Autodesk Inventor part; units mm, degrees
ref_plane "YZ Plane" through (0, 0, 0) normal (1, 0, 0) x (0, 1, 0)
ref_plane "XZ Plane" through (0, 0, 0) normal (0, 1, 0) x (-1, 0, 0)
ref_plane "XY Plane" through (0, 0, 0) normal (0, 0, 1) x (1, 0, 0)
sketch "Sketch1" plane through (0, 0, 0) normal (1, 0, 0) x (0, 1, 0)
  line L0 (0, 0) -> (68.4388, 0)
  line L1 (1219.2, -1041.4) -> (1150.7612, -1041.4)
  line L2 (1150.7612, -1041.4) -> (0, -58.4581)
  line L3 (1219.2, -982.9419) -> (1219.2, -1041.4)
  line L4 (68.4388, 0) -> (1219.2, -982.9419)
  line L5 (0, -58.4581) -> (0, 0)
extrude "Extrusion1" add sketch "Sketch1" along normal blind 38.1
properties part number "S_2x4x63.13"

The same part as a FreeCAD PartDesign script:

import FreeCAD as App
import Part
import Sketcher
from FreeCAD import Vector
Q = App.Units.Quantity

doc = App.newDocument("Part")
body = doc.addObject("PartDesign::Body", "Body")

# Sketch on YZ plane
sketch1 = doc.addObject("Sketcher::SketchObject", "Sketch")
body.addObject(sketch1)
sketch1.AttachmentSupport = (doc.YZ_Plane, [""])
sketch1.MapMode = "FlatFace"
sketch1.addGeometry(Part.LineSegment(Vector(68, 0, 0), Vector(0, 0, 0)), False)
sketch1.addGeometry(Part.LineSegment(Vector(0, 0, 0), Vector(0, -58, 0)), False)
sketch1.addGeometry(Part.LineSegment(Vector(0, -58, 0), Vector(1151, -1041, 0)), False)
sketch1.addGeometry(Part.LineSegment(Vector(1151, -1041, 0), Vector(1219, -1041, 0)), False)
sketch1.addGeometry(Part.LineSegment(Vector(1219, -1041, 0), Vector(1219, -983, 0)), False)
sketch1.addGeometry(Part.LineSegment(Vector(1219, -983, 0), Vector(68, 0, 0)), False)
sketch1.addConstraint(Sketcher.Constraint("Coincident", 0, 2, 1, 1))
sketch1.addConstraint(Sketcher.Constraint("Coincident", 1, 2, 2, 1))
sketch1.addConstraint(Sketcher.Constraint("Coincident", 2, 2, 3, 1))
sketch1.addConstraint(Sketcher.Constraint("Coincident", 3, 2, 4, 1))
sketch1.addConstraint(Sketcher.Constraint("Coincident", 4, 2, 5, 1))
sketch1.addConstraint(Sketcher.Constraint("Coincident", 5, 2, 0, 1))
sketch1.addConstraint(Sketcher.Constraint("Horizontal", 0))
sketch1.addConstraint(Sketcher.Constraint("Vertical", 1))
sketch1.addConstraint(Sketcher.Constraint("Horizontal", 3))
sketch1.addConstraint(Sketcher.Constraint("Vertical", 4))
sketch1.addConstraint(Sketcher.Constraint("Coincident", 0, 2, -1, 1))
sketch1.addConstraint(Sketcher.Constraint("Parallel", 2, 5))
sketch1.addConstraint(Sketcher.Constraint("Equal", 0, 3))
sketch1.addConstraint(Sketcher.Constraint("DistanceY", 2, 2, -1, 1, Q("41 in")))
sketch1.addConstraint(Sketcher.Constraint("DistanceX", -1, 1, 3, 2, Q("48 in")))
sketch1.addConstraint(Sketcher.Constraint("DistanceY", 1, 2, 1, 1, Q("2.3015 in")))
sketch1.addConstraint(Sketcher.Constraint("DistanceX", 0, 2, 0, 1, 68.4388))
pad1 = doc.addObject("PartDesign::Pad", "Pad")
body.addObject(pad1)
pad1.Profile = sketch1
pad1.Length = Q("1.5 in")

doc.recompute()
